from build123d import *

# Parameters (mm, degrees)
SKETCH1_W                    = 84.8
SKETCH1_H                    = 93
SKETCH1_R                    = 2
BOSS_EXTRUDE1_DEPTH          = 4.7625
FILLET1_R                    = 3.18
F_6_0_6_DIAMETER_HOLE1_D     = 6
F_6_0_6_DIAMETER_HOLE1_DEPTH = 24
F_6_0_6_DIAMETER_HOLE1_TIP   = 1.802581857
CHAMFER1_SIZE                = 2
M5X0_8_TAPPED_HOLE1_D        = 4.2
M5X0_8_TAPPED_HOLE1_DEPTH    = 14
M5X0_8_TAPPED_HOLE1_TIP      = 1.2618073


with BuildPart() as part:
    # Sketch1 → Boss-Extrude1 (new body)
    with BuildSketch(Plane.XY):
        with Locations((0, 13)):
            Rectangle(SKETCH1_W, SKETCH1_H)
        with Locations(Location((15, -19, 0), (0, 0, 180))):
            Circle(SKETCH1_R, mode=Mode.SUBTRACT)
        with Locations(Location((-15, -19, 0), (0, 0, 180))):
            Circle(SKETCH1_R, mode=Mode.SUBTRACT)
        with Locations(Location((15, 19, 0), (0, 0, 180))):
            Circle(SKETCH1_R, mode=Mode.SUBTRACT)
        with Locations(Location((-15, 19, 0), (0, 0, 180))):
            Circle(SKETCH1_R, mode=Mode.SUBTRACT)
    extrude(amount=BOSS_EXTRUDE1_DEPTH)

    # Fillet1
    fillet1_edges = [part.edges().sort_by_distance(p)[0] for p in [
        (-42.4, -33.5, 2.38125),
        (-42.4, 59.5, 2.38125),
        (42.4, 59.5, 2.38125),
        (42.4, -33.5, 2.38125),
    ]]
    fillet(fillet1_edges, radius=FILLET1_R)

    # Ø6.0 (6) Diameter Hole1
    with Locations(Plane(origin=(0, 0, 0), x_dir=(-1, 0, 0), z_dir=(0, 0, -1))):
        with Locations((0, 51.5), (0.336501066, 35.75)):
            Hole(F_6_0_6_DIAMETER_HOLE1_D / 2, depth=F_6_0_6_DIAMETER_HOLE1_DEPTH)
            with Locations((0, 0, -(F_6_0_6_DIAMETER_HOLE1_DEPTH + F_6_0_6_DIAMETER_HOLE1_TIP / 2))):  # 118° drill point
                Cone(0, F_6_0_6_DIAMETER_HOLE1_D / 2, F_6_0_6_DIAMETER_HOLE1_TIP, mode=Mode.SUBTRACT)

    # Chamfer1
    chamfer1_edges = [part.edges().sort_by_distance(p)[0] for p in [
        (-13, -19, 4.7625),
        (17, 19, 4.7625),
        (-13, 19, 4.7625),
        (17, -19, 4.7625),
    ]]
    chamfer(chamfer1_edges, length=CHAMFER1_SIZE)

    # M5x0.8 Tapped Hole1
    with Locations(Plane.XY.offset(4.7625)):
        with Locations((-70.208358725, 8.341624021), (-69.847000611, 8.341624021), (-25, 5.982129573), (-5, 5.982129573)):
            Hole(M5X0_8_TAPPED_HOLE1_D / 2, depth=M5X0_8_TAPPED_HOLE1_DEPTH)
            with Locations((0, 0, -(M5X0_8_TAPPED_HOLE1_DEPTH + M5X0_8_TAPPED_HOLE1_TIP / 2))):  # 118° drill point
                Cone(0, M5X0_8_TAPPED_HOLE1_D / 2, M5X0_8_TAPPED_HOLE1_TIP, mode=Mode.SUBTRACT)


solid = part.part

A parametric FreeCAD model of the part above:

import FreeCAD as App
import Part
import Sketcher

V = App.Vector


def edges_at(feature, points):
    """Names of the edges that pass closest to the given points."""
    edges = feature.Shape.Edges
    near = lambda p: min(range(len(edges)), key=lambda i: edges[i].distToShape(Part.Vertex(*p))[0])
    return sorted({f"Edge{near(p) + 1}" for p in points})


def add_polygon(sketch, points):
    """Adds a closed chain of lines whose ends are joined by coincident constraints."""
    first, n = sketch.GeometryCount, len(points)
    for a, b in zip(points, points[1:] + points[:1]):
        sketch.addGeometry(Part.LineSegment(App.Vector(*a, 0), App.Vector(*b, 0)), False)
    for i in range(n):
        sketch.addConstraint(Sketcher.Constraint("Coincident", first + i, 2, first + (i + 1) % n, 1))

doc = App.newDocument("Part")
params = doc.addObject("Spreadsheet::Sheet", "Params")
for row, (alias, value) in enumerate([
    ("sketch1_diameter", "4 mm"),
    ("sketch1_height", "93 mm"),
    ("sketch1_width", "84.8 mm"),
    ("pad1_length", "4.7625 mm"),
    ("fillet_radius", "3.18 mm"),
    ("sketch2_diameter", "6 mm"),
    ("hole_diameter", "6 mm"),
    ("hole_depth", "24 mm"),
    ("chamfer_size", "2 mm"),
    ("sketch3_diameter", "4.2 mm"),
    ("hole2_diameter", "4.2 mm"),
    ("hole2_depth", "14 mm"),
], start=1):
    params.set(f"A{row}", alias)
    params.set(f"B{row}", "=" + value)
    params.setAlias(f"B{row}", alias)

body = doc.addObject("PartDesign::Body", "Body")

sketch1 = doc.addObject("Sketcher::SketchObject", "Sketch")
body.addObject(sketch1)
sketch1.AttachmentSupport = (doc.XY_Plane, [""])
sketch1.MapMode = "FlatFace"
add_polygon(sketch1, [(-42.4, 59.5), (-42.4, -33.5), (42.4, -33.5), (42.4, 59.5)])
sketch1.addGeometry(Part.Circle(V(-15, -19, 0), V(0, 0, 1), 2), False)
sketch1.addGeometry(Part.Circle(V(15, -19, 0), V(0, 0, 1), 2), False)
sketch1.addGeometry(Part.Circle(V(-15, 19, 0), V(0, 0, 1), 2), False)
sketch1.addGeometry(Part.Circle(V(15, 19, 0), V(0, 0, 1), 2), False)
sketch1.addConstraint([
    Sketcher.Constraint("Vertical", 0),
    Sketcher.Constraint("Horizontal", 1),
    Sketcher.Constraint("Vertical", 2),
    Sketcher.Constraint("Horizontal", 3),
    Sketcher.Constraint("Equal", 4, 5),
    Sketcher.Constraint("Equal", 5, 6),
    Sketcher.Constraint("Equal", 6, 7),
    Sketcher.Constraint("Symmetric", 5, 3, 6, 3, -1, 1),
    Sketcher.Constraint("Symmetric", 4, 3, 7, 3, -1, 1),
    Sketcher.Constraint("Symmetric", 4, 3, 5, 3, -2),
    Sketcher.Constraint("Diameter", 4, 4.0),
    Sketcher.Constraint("DistanceY", 0, 2, 0, 1, 93.0),
    Sketcher.Constraint("DistanceX", 1, 1, 1, 2, 84.8),
    Sketcher.Constraint("DistanceX", 4, 3, -1, 1, 15.0),
    Sketcher.Constraint("DistanceY", 4, 3, -1, 1, 19.0),
    Sketcher.Constraint("DistanceX", 0, 2, -1, 1, 42.4),
    Sketcher.Constraint("DistanceY", 0, 2, -1, 1, 33.5),
])
sketch1.setExpression("Constraints[14]", "Params.sketch1_diameter")
sketch1.setExpression("Constraints[15]", "Params.sketch1_height")
sketch1.setExpression("Constraints[16]", "Params.sketch1_width")
pad1 = doc.addObject("PartDesign::Pad", "Pad")
body.addObject(pad1)
pad1.Profile = sketch1
pad1.setExpression("Length", "Params.pad1_length")
doc.recompute()

fillet = doc.addObject("PartDesign::Fillet", "Fillet")
body.addObject(fillet)
fillet.Base = (pad1, edges_at(pad1, [
    (-42.4, -33.5, 2.381),
    (-42.4, 59.5, 2.381),
    (42.4, 59.5, 2.381),
    (42.4, -33.5, 2.381),
]))
fillet.setExpression("Radius", "Params.fillet_radius")

sketch2 = doc.addObject("Sketcher::SketchObject", "Sketch001")
body.addObject(sketch2)
sketch2.AttachmentSupport = (doc.XY_Plane, [""])
sketch2.MapMode = "FlatFace"
sketch2.addGeometry([
    Part.Circle(V(0, 51.5, 0), V(0, 0, 1), 3),
    Part.Circle(V(-0.3, 35.8, 0), V(0, 0, 1), 3),
], False)
sketch2.addConstraint([
    Sketcher.Constraint("Equal", 0, 1),
    Sketcher.Constraint("PointOnObject", 0, 3, -2),
    Sketcher.Constraint("Diameter", 0, 6.0),
    Sketcher.Constraint("DistanceY", -1, 1, 0, 3, 51.5),
    Sketcher.Constraint("DistanceY", -1, 1, 1, 3, 35.75),
    Sketcher.Constraint("DistanceX", 1, 3, -1, 1, 0.336501),
])
sketch2.setExpression("Constraints[2]", "Params.sketch2_diameter")
doc.recompute()
hole = doc.addObject("PartDesign::Hole", "Hole")
body.addObject(hole)
hole.Profile = sketch2
hole.ThreadType = "None"
hole.setExpression("Diameter", "Params.hole_diameter")
hole.DepthType = "Dimension"
hole.setExpression("Depth", "Params.hole_depth")
hole.DrillPoint = "Angled"
hole.DrillPointAngle = 118
hole.Reversed = True
doc.recompute()

chamfer = doc.addObject("PartDesign::Chamfer", "Chamfer")
body.addObject(chamfer)
chamfer.Base = (hole, edges_at(hole, [
    (-13, -19, 4.763),
    (17, 19, 4.763),
    (-13, 19, 4.763),
    (17, -19, 4.763),
]))
chamfer.setExpression("Size", "Params.chamfer_size")

sketch3 = doc.addObject("Sketcher::SketchObject", "Sketch002")
body.addObject(sketch3)
sketch3.AttachmentSupport = (doc.XY_Plane, [""])
sketch3.MapMode = "FlatFace"
sketch3.AttachmentOffset = App.Placement(V(0, 0, 4.7625), App.Rotation())
sketch3.addGeometry([
    Part.Circle(V(-70.2, 8.3, 0), V(0, 0, 1), 2.1),
    Part.Circle(V(-69.8, 8.3, 0), V(0, 0, 1), 2.1),
    Part.Circle(V(-25, 6, 0), V(0, 0, 1), 2.1),
    Part.Circle(V(-5, 6, 0), V(0, 0, 1), 2.1),
], False)
sketch3.addConstraint([
    Sketcher.Constraint("Equal", 0, 1),
    Sketcher.Constraint("Equal", 1, 2),
    Sketcher.Constraint("Equal", 2, 3),
    Sketcher.Constraint("Horizontal", 0, 3, 1, 3),
    Sketcher.Constraint("Horizontal", 2, 3, 3, 3),
    Sketcher.Constraint("Diameter", 0, 4.2),
    Sketcher.Constraint("DistanceX", 2, 3, -1, 1, 25.0),
    Sketcher.Constraint("DistanceX", 3, 3, -1, 1, 5.0),
    Sketcher.Constraint("DistanceX", 1, 3, -1, 1, 69.847001),
    Sketcher.Constraint("DistanceX", 0, 3, -1, 1, 70.208359),
    Sketcher.Constraint("DistanceY", -1, 1, 2, 3, 5.98213),
    Sketcher.Constraint("DistanceY", -1, 1, 0, 3, 8.341624),
])
sketch3.setExpression("Constraints[5]", "Params.sketch3_diameter")
doc.recompute()
hole2 = doc.addObject("PartDesign::Hole", "Hole001")
body.addObject(hole2)
hole2.Profile = sketch3
hole2.ThreadType = "None"
hole2.setExpression("Diameter", "Params.hole2_diameter")
hole2.DepthType = "Dimension"
hole2.setExpression("Depth", "Params.hole2_depth")
hole2.DrillPoint = "Angled"
hole2.DrillPointAngle = 118

doc.recompute()
